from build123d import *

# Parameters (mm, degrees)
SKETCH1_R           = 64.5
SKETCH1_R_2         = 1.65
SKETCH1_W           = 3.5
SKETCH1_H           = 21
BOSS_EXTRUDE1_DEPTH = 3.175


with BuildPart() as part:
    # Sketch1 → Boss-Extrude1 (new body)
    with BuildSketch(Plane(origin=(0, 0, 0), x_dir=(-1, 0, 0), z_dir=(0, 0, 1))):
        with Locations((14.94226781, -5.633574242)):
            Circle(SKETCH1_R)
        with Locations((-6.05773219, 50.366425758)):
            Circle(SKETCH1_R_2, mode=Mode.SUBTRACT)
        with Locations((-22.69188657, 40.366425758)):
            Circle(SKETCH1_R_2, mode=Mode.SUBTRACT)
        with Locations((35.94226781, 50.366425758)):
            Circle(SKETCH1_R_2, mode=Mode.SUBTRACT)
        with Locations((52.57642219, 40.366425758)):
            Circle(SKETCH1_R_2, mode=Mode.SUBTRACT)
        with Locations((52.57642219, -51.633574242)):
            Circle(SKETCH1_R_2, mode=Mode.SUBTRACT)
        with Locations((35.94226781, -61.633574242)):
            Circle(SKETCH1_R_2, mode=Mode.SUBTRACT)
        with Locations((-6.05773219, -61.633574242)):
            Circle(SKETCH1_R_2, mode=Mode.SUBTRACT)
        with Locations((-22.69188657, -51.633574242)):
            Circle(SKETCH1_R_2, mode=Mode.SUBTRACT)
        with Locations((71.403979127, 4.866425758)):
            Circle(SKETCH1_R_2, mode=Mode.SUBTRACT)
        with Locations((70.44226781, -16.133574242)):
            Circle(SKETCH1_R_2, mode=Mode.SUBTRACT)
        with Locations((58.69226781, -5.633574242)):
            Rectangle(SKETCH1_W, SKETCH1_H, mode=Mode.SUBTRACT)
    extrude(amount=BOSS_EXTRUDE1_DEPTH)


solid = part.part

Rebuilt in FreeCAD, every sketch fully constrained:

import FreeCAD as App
import Part
import Sketcher


def add_polygon(sketch, points):
    """Adds a closed chain of lines whose ends are joined by coincident constraints."""
    first, n = sketch.GeometryCount, len(points)
    for a, b in zip(points, points[1:] + points[:1]):
        sketch.addGeometry(Part.LineSegment(App.Vector(*a, 0), App.Vector(*b, 0)), False)
    for i in range(n):
        sketch.addConstraint(Sketcher.Constraint("Coincident", first + i, 2, first + (i + 1) % n, 1))

doc = App.newDocument("Part")
params = doc.addObject("Spreadsheet::Sheet", "Params")
for row, (alias, value) in enumerate([
    ("sketch1_diameter", "129 mm"),
    ("sketch1_diameter2", "3.3 mm"),
    ("sketch1_height", "21 mm"),
    ("sketch1_width", "3.5 mm"),
    ("pad1_length", "3.175 mm"),
], start=1):
    params.set(f"A{row}", alias)
    params.set(f"B{row}", "=" + value)
    params.setAlias(f"B{row}", alias)

body = doc.addObject("PartDesign::Body", "Body")

sketch1 = body.newObject("Sketcher::SketchObject", "Sketch")
sketch1.AttachmentSupport = (doc.getObject("XY_Plane"), [""])
sketch1.MapMode = "FlatFace"
sketch1.addGeometry(Part.Circle(App.Vector(-14.9, 5.6, 0), App.Vector(0, 0, 1), 64.5), False)
sketch1.addGeometry(Part.Circle(App.Vector(22.7, 51.6, 0), App.Vector(0, 0, 1), 1.6), False)
sketch1.addGeometry(Part.Circle(App.Vector(6.1, 61.6, 0), App.Vector(0, 0, 1), 1.6), False)
sketch1.addGeometry(Part.Circle(App.Vector(-35.9, 61.6, 0), App.Vector(0, 0, 1), 1.6), False)
sketch1.addGeometry(Part.Circle(App.Vector(-52.6, 51.6, 0), App.Vector(0, 0, 1), 1.6), False)
add_polygon(sketch1, [(-60.4, 16.1), (-56.9, 16.1), (-56.9, -4.9), (-60.4, -4.9)])
sketch1.addGeometry(Part.Circle(App.Vector(-70.4, 16.1, 0), App.Vector(0, 0, 1), 1.6), False)
sketch1.addGeometry(Part.Circle(App.Vector(22.7, -40.4, 0), App.Vector(0, 0, 1), 1.6), False)
sketch1.addGeometry(Part.Circle(App.Vector(6.1, -50.4, 0), App.Vector(0, 0, 1), 1.6), False)
sketch1.addGeometry(Part.Circle(App.Vector(-71.4, -4.9, 0), App.Vector(0, 0, 1), 1.6), False)
sketch1.addGeometry(Part.Circle(App.Vector(-35.9, -50.4, 0), App.Vector(0, 0, 1), 1.6), False)
sketch1.addGeometry(Part.Circle(App.Vector(-52.6, -40.4, 0), App.Vector(0, 0, 1), 1.6), False)
sketch1.addConstraint(Sketcher.Constraint("Horizontal", 5))
sketch1.addConstraint(Sketcher.Constraint("Vertical", 6))
sketch1.addConstraint(Sketcher.Constraint("Horizontal", 7))
sketch1.addConstraint(Sketcher.Constraint("Vertical", 8))
sketch1.addConstraint(Sketcher.Constraint("Equal", 1, 2))
sketch1.addConstraint(Sketcher.Constraint("Equal", 2, 3))
sketch1.addConstraint(Sketcher.Constraint("Equal", 3, 4))
sketch1.addConstraint(Sketcher.Constraint("Equal", 4, 9))
sketch1.addConstraint(Sketcher.Constraint("Equal", 9, 10))
sketch1.addConstraint(Sketcher.Constraint("Equal", 10, 11))
sketch1.addConstraint(Sketcher.Constraint("Equal", 11, 12))
sketch1.addConstraint(Sketcher.Constraint("Equal", 12, 13))
sketch1.addConstraint(Sketcher.Constraint("Equal", 13, 14))
sketch1.addConstraint(Sketcher.Constraint("Horizontal", 2, 3, 3, 3))
sketch1.addConstraint(Sketcher.Constraint("Horizontal", 1, 3, 4, 3))
sketch1.addConstraint(Sketcher.Constraint("Horizontal", 11, 3, 13, 3))
sketch1.addConstraint(Sketcher.Constraint("Horizontal", 10, 3, 14, 3))
sketch1.addConstraint(Sketcher.Constraint("Horizontal", 9, 3, 5, 2))
sketch1.addConstraint(Sketcher.Constraint("Horizontal", 12, 3, 6, 2))
sketch1.addConstraint(Sketcher.Constraint("Vertical", 1, 3, 10, 3))
sketch1.addConstraint(Sketcher.Constraint("Vertical", 2, 3, 11, 3))
sketch1.addConstraint(Sketcher.Constraint("Vertical", 3, 3, 13, 3))
sketch1.addConstraint(Sketcher.Constraint("Vertical", 4, 3, 14, 3))
sketch1.addConstraint(Sketcher.Constraint("Diameter", 0, 129.0))
sketch1.addConstraint(Sketcher.Constraint("Diameter", 1, 3.3))
sketch1.addConstraint(Sketcher.Constraint("DistanceY", 6, 2, 6, 1, 21.0))
sketch1.addConstraint(Sketcher.Constraint("DistanceX", 5, 1, 5, 2, 3.5))
sketch1.addConstraint(Sketcher.Constraint("DistanceY", 0, 3, 1, 3, 46.0))
sketch1.addConstraint(Sketcher.Constraint("DistanceY", 1, 3, 2, 3, 10.0))
sketch1.addConstraint(Sketcher.Constraint("DistanceX", 0, 3, 2, 3, 21.0))
sketch1.addConstraint(Sketcher.Constraint("DistanceX", 3, 3, 2, 3, 42.0))
sketch1.addConstraint(Sketcher.Constraint("DistanceY", 10, 3, 0, 3, 46.0))
sketch1.addConstraint(Sketcher.Constraint("DistanceY", 11, 3, 10, 3, 10.0))
sketch1.addConstraint(Sketcher.Constraint("DistanceX", 5, 2, 0, 3, 42.0))
sketch1.addConstraint(Sketcher.Constraint("DistanceX", 9, 3, 7, 2, 10.0))
sketch1.addConstraint(Sketcher.Constraint("DistanceY", 9, 3, 4, 3, 35.5))
sketch1.addConstraint(Sketcher.Constraint("DistanceX", 12, 3, -1, 1, 71.403979))
sketch1.addConstraint(Sketcher.Constraint("DistanceX", 4, 3, 1, 3, 75.268309))
sketch1.addConstraint(Sketcher.Constraint("DistanceX", 12, 3, 9, 3, 0.961711))
sketch1.addConstraint(Sketcher.Constraint("DistanceY", -1, 1, 0, 3, 5.633574))
sketch1.addConstraint(Sketcher.Constraint("DistanceX", -1, 1, 1, 3, 22.691887))
sketch1.setExpression("Constraints[27]", "Params.sketch1_diameter")
sketch1.setExpression("Constraints[28]", "Params.sketch1_diameter2")
sketch1.setExpression("Constraints[29]", "Params.sketch1_height")
sketch1.setExpression("Constraints[30]", "Params.sketch1_width")
pad1 = body.newObject("PartDesign::Pad", "Pad")
pad1.Profile = sketch1
pad1.setExpression("Length", "Params.pad1_length")

doc.recompute()
